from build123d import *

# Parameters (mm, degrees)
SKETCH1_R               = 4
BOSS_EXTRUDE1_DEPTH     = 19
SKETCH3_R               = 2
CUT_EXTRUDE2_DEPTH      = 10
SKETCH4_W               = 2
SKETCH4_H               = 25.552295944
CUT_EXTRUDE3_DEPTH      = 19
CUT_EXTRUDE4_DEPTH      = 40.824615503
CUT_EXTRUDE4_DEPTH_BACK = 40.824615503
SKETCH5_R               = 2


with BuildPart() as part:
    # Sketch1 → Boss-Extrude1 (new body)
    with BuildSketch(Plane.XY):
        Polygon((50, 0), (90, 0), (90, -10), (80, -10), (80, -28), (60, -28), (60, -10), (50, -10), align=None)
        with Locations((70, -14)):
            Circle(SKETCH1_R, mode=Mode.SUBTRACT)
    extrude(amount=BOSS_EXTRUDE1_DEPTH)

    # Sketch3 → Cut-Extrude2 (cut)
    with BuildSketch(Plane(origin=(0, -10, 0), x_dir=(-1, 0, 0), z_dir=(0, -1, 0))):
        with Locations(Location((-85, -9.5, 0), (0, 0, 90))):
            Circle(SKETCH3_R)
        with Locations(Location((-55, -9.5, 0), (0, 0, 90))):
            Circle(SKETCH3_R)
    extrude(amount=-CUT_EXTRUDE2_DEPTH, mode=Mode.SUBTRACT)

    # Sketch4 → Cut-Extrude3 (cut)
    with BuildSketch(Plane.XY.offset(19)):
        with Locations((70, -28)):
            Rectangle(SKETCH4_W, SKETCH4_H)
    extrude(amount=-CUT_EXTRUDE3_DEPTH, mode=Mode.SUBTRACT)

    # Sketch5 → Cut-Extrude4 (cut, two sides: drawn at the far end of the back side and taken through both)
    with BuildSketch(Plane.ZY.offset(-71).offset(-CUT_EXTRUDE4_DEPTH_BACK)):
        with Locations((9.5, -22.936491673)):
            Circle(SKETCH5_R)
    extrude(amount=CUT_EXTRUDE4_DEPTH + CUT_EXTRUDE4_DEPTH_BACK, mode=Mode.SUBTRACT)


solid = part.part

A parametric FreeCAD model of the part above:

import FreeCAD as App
import Part
import Sketcher
from FreeCAD import Vector
Q = App.Units.Quantity

doc = App.newDocument("Part")
params = doc.addObject("Spreadsheet::Sheet", "Params")
for row, (alias, value) in enumerate([
    ("sketch1_diameter", "8 mm"),
    ("sketch1_width", "40 mm"),
    ("sketch1_width2", "10 mm"),
    ("sketch1_height", "18 mm"),
    ("pad1_length", "19 mm"),
    ("sketch2_diameter", "4 mm"),
    ("pocket1_length", "10 mm"),
    ("sketch3_width", "2 mm"),
    ("pocket2_length", "19 mm"),
    ("sketch4_diameter", "4 mm"),
], start=1):
    params.set(f"A{row}", alias)
    params.set(f"B{row}", "=" + value)
    params.setAlias(f"B{row}", alias)

body = doc.addObject("PartDesign::Body", "Body")

# Sketch on XY plane
sketch1 = doc.addObject("Sketcher::SketchObject", "Sketch")
body.addObject(sketch1)
sketch1.AttachmentSupport = (doc.XY_Plane, [""])
sketch1.MapMode = "FlatFace"
sketch1.addGeometry(Part.LineSegment(Vector(90, 0, 0), Vector(50, 0, 0)), False)
sketch1.addGeometry(Part.LineSegment(Vector(50, 0, 0), Vector(50, -10, 0)), False)
sketch1.addGeometry(Part.LineSegment(Vector(50, -10, 0), Vector(60, -10, 0)), False)
sketch1.addGeometry(Part.LineSegment(Vector(60, -10, 0), Vector(60, -28, 0)), False)
sketch1.addGeometry(Part.LineSegment(Vector(60, -28, 0), Vector(80, -28, 0)), False)
sketch1.addGeometry(Part.LineSegment(Vector(80, -28, 0), Vector(80, -10, 0)), False)
sketch1.addGeometry(Part.LineSegment(Vector(80, -10, 0), Vector(90, -10, 0)), False)
sketch1.addGeometry(Part.LineSegment(Vector(90, -10, 0), Vector(90, 0, 0)), False)
sketch1.addGeometry(Part.Circle(Vector(70, -14, 0), Vector(0, 0, 1), 4), False)
sketch1.addConstraint(Sketcher.Constraint("Coincident", 0, 2, 1, 1))
sketch1.addConstraint(Sketcher.Constraint("Coincident", 1, 2, 2, 1))
sketch1.addConstraint(Sketcher.Constraint("Coincident", 2, 2, 3, 1))
sketch1.addConstraint(Sketcher.Constraint("Coincident", 3, 2, 4, 1))
sketch1.addConstraint(Sketcher.Constraint("Coincident", 4, 2, 5, 1))
sketch1.addConstraint(Sketcher.Constraint("Coincident", 5, 2, 6, 1))
sketch1.addConstraint(Sketcher.Constraint("Coincident", 6, 2, 7, 1))
sketch1.addConstraint(Sketcher.Constraint("Coincident", 7, 2, 0, 1))
sketch1.addConstraint(Sketcher.Constraint("Horizontal", 0))
sketch1.addConstraint(Sketcher.Constraint("Vertical", 1))
sketch1.addConstraint(Sketcher.Constraint("Horizontal", 2))
sketch1.addConstraint(Sketcher.Constraint("Vertical", 3))
sketch1.addConstraint(Sketcher.Constraint("Horizontal", 4))
sketch1.addConstraint(Sketcher.Constraint("Vertical", 5))
sketch1.addConstraint(Sketcher.Constraint("Horizontal", 6))
sketch1.addConstraint(Sketcher.Constraint("Vertical", 7))
sketch1.addConstraint(Sketcher.Constraint("PointOnObject", 0, 2, -1))
sketch1.addConstraint(Sketcher.Constraint("Horizontal", 2, 2, 5, 2))
sketch1.addConstraint(Sketcher.Constraint("Equal", 2, 6))
sketch1.addConstraint(Sketcher.Constraint("Equal", 6, 1))
sketch1.addConstraint(Sketcher.Constraint("Diameter", 8, Q("8 mm")))
sketch1.addConstraint(Sketcher.Constraint("DistanceX", 0, 2, 0, 1, Q("40 mm")))
sketch1.addConstraint(Sketcher.Constraint("DistanceX", 2, 1, 2, 2, Q("10 mm")))
sketch1.addConstraint(Sketcher.Constraint("DistanceY", 3, 2, 3, 1, Q("18 mm")))
sketch1.addConstraint(Sketcher.Constraint("DistanceX", -1, 1, 8, 3, Q("70 mm")))
sketch1.addConstraint(Sketcher.Constraint("DistanceY", 8, 3, -1, 1, Q("14 mm")))
sketch1.addConstraint(Sketcher.Constraint("DistanceX", -1, 1, 0, 2, Q("50 mm")))
sketch1.setExpression("Constraints[20]", "Params.sketch1_diameter")
sketch1.setExpression("Constraints[21]", "Params.sketch1_width")
sketch1.setExpression("Constraints[22]", "Params.sketch1_width2")
sketch1.setExpression("Constraints[23]", "Params.sketch1_height")
pad1 = doc.addObject("PartDesign::Pad", "Pad")
body.addObject(pad1)
pad1.Profile = sketch1
pad1.setExpression("Length", "Params.pad1_length")

# Sketch on XZ plane
sketch2 = doc.addObject("Sketcher::SketchObject", "Sketch001")
body.addObject(sketch2)
sketch2.AttachmentSupport = (doc.XZ_Plane, [""])
sketch2.MapMode = "FlatFace"
sketch2.AttachmentOffset = App.Placement(Vector(0, 0, 10), App.Rotation())
sketch2.addGeometry(Part.Circle(Vector(85, 9.5, 0), Vector(0, 0, 1), 2), False)
sketch2.addGeometry(Part.Circle(Vector(55, 9.5, 0), Vector(0, 0, 1), 2), False)
sketch2.addConstraint(Sketcher.Constraint("Equal", 0, 1))
sketch2.addConstraint(Sketcher.Constraint("Horizontal", 0, 3, 1, 3))
sketch2.addConstraint(Sketcher.Constraint("Diameter", 0, Q("4 mm")))
sketch2.addConstraint(Sketcher.Constraint("DistanceX", -1, 1, 0, 3, Q("85 mm")))
sketch2.addConstraint(Sketcher.Constraint("DistanceX", -1, 1, 1, 3, Q("55 mm")))
sketch2.addConstraint(Sketcher.Constraint("DistanceY", -1, 1, 0, 3, Q("9.5 mm")))
sketch2.setExpression("Constraints[2]", "Params.sketch2_diameter")
pocket1 = doc.addObject("PartDesign::Pocket", "Pocket")
body.addObject(pocket1)
pocket1.Profile = sketch2
pocket1.setExpression("Length", "Params.pocket1_length")

# Sketch on XY plane
sketch3 = doc.addObject("Sketcher::SketchObject", "Sketch002")
body.addObject(sketch3)
sketch3.AttachmentSupport = (doc.XY_Plane, [""])
sketch3.MapMode = "FlatFace"
sketch3.AttachmentOffset = App.Placement(Vector(0, 0, 19), App.Rotation())
sketch3.addGeometry(Part.LineSegment(Vector(69, -15.2, 0), Vector(69, -40.8, 0)), False)
sketch3.addGeometry(Part.LineSegment(Vector(69, -40.8, 0), Vector(71, -40.8, 0)), False)
sketch3.addGeometry(Part.LineSegment(Vector(71, -40.8, 0), Vector(71, -15.2, 0)), False)
sketch3.addGeometry(Part.LineSegment(Vector(71, -15.2, 0), Vector(69, -15.2, 0)), False)
sketch3.addConstraint(Sketcher.Constraint("Coincident", 0, 2, 1, 1))
sketch3.addConstraint(Sketcher.Constraint("Coincident", 1, 2, 2, 1))
sketch3.addConstraint(Sketcher.Constraint("Coincident", 2, 2, 3, 1))
sketch3.addConstraint(Sketcher.Constraint("Coincident", 3, 2, 0, 1))
sketch3.addConstraint(Sketcher.Constraint("Vertical", 0))
sketch3.addConstraint(Sketcher.Constraint("Horizontal", 1))
sketch3.addConstraint(Sketcher.Constraint("Vertical", 2))
sketch3.addConstraint(Sketcher.Constraint("Horizontal", 3))
sketch3.addConstraint(Sketcher.Constraint("DistanceX", 1, 1, 1, 2, Q("2 mm")))
sketch3.addConstraint(Sketcher.Constraint("DistanceX", -1, 1, 0, 2, Q("69 mm")))
sketch3.addConstraint(Sketcher.Constraint("DistanceY", 0, 2, 0, 1, Q("25.552296 mm")))
sketch3.addConstraint(Sketcher.Constraint("DistanceY", 0, 2, -1, 1, Q("40.776148 mm")))
sketch3.setExpression("Constraints[8]", "Params.sketch3_width")
pocket2 = doc.addObject("PartDesign::Pocket", "Pocket001")
body.addObject(pocket2)
pocket2.Profile = sketch3
pocket2.setExpression("Length", "Params.pocket2_length")

# Sketch on YZ plane
sketch4 = doc.addObject("Sketcher::SketchObject", "Sketch003")
body.addObject(sketch4)
sketch4.AttachmentSupport = (doc.YZ_Plane, [""])
sketch4.MapMode = "FlatFace"
sketch4.AttachmentOffset = App.Placement(Vector(0, 0, 71), App.Rotation())
sketch4.addGeometry(Part.Circle(Vector(-22.9, 9.5, 0), Vector(0, 0, 1), 2), False)
sketch4.addConstraint(Sketcher.Constraint("Diameter", 0, Q("4 mm")))
sketch4.addConstraint(Sketcher.Constraint("DistanceY", -1, 1, 0, 3, Q("9.5 mm")))
sketch4.addConstraint(Sketcher.Constraint("DistanceX", 0, 3, -1, 1, Q("22.936492 mm")))
sketch4.setExpression("Constraints[0]", "Params.sketch4_diameter")
pocket3 = doc.addObject("PartDesign::Pocket", "Pocket002")
body.addObject(pocket3)
pocket3.Profile = sketch4
pocket3.Type = "ThroughAll"
pocket3.Midplane = True

doc.recompute()
